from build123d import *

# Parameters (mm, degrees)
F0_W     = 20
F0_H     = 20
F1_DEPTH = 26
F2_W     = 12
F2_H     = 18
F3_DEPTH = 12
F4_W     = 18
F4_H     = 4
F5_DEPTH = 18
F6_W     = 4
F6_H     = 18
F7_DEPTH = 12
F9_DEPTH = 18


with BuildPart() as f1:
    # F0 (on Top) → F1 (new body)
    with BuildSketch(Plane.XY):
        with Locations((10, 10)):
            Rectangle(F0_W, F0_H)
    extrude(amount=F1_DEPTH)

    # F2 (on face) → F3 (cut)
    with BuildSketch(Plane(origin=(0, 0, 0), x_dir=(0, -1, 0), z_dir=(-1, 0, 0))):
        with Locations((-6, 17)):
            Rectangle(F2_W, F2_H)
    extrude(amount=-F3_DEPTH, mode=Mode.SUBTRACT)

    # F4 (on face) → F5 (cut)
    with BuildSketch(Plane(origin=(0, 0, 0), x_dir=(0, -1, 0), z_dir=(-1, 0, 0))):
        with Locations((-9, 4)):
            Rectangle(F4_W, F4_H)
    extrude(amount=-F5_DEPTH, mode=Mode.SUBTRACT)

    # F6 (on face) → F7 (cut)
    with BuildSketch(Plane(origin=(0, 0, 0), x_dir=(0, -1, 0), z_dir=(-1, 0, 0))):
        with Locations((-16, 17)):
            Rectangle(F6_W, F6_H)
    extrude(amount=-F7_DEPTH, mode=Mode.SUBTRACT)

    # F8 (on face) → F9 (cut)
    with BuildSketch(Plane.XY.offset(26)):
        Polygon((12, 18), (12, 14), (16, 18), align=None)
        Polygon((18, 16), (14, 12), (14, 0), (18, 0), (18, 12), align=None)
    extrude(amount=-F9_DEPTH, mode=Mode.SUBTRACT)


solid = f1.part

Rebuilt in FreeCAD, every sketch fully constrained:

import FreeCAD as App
import Part
import Sketcher
Q = App.Units.Quantity


def add_polygon(sketch, points):
    """Adds a closed chain of lines whose ends are joined by coincident constraints."""
    first, n = sketch.GeometryCount, len(points)
    for a, b in zip(points, points[1:] + points[:1]):
        sketch.addGeometry(Part.LineSegment(App.Vector(*a, 0), App.Vector(*b, 0)), False)
    for i in range(n):
        sketch.addConstraint(Sketcher.Constraint("Coincident", first + i, 2, first + (i + 1) % n, 1))

doc = App.newDocument("Part")
body = doc.addObject("PartDesign::Body", "Body")

# Sketch on XY plane
sketch1 = body.newObject("Sketcher::SketchObject", "Sketch")
sketch1.AttachmentSupport = (doc.getObject("XY_Plane"), [""])
sketch1.MapMode = "FlatFace"
add_polygon(sketch1, [(0, 20), (0, 0), (20, 0), (20, 20)])  # lines 0-3
sketch1.addConstraint([
    Sketcher.Constraint("Vertical", 0),
    Sketcher.Constraint("Horizontal", 1),
    Sketcher.Constraint("Vertical", 2),
    Sketcher.Constraint("Horizontal", 3),
    Sketcher.Constraint("Coincident", 0, 2, -1, 1),
    Sketcher.Constraint("Equal", 3, 0),
    Sketcher.Constraint("DistanceX", 1, 1, 1, 2, Q("20 mm")),
])
pad1 = body.newObject("PartDesign::Pad", "Pad")
pad1.Profile = sketch1
pad1.Length = 26

# Sketch on YZ plane
sketch2 = body.newObject("Sketcher::SketchObject", "Sketch001")
sketch2.AttachmentSupport = (doc.getObject("YZ_Plane"), [""])
sketch2.MapMode = "FlatFace"
add_polygon(sketch2, [(12, 26), (12, 8), (0, 8), (0, 26)])  # lines 0-3
sketch2.addConstraint([
    Sketcher.Constraint("Vertical", 0),
    Sketcher.Constraint("Horizontal", 1),
    Sketcher.Constraint("Vertical", 2),
    Sketcher.Constraint("Horizontal", 3),
    Sketcher.Constraint("PointOnObject", 1, 2, -2),
    Sketcher.Constraint("DistanceX", 1, 2, 1, 1, Q("12 mm")),
    Sketcher.Constraint("DistanceY", 0, 2, 0, 1, Q("18 mm")),
    Sketcher.Constraint("DistanceY", -1, 1, 0, 2, Q("8 mm")),
])
pocket1 = body.newObject("PartDesign::Pocket", "Pocket")
pocket1.Profile = sketch2
pocket1.Length = 12
pocket1.Reversed = True

# Sketch on YZ plane
sketch3 = body.newObject("Sketcher::SketchObject", "Sketch002")
sketch3.AttachmentSupport = (doc.getObject("YZ_Plane"), [""])
sketch3.MapMode = "FlatFace"
add_polygon(sketch3, [(18, 6), (18, 2), (0, 2), (0, 6)])  # lines 0-3
sketch3.addConstraint([
    Sketcher.Constraint("Vertical", 0),
    Sketcher.Constraint("Horizontal", 1),
    Sketcher.Constraint("Vertical", 2),
    Sketcher.Constraint("Horizontal", 3),
    Sketcher.Constraint("PointOnObject", 1, 2, -2),
    Sketcher.Constraint("DistanceX", 1, 2, 1, 1, Q("18 mm")),
    Sketcher.Constraint("DistanceY", 0, 2, 0, 1, Q("4 mm")),
    Sketcher.Constraint("DistanceY", -1, 1, 0, 2, Q("2 mm")),
])
pocket2 = body.newObject("PartDesign::Pocket", "Pocket001")
pocket2.Profile = sketch3
pocket2.Length = 18
pocket2.Reversed = True

# Sketch on YZ plane
sketch4 = body.newObject("Sketcher::SketchObject", "Sketch003")
sketch4.AttachmentSupport = (doc.getObject("YZ_Plane"), [""])
sketch4.MapMode = "FlatFace"
add_polygon(sketch4, [(18, 26), (18, 8), (14, 8), (14, 26)])  # lines 0-3
sketch4.addConstraint([
    Sketcher.Constraint("Vertical", 0),
    Sketcher.Constraint("Horizontal", 1),
    Sketcher.Constraint("Vertical", 2),
    Sketcher.Constraint("Horizontal", 3),
    Sketcher.Constraint("DistanceX", 1, 2, 1, 1, Q("4 mm")),
    Sketcher.Constraint("DistanceY", 0, 2, 0, 1, Q("18 mm")),
    Sketcher.Constraint("DistanceX", -1, 1, 0, 2, Q("18 mm")),
    Sketcher.Constraint("DistanceY", -1, 1, 0, 2, Q("8 mm")),
])
pocket3 = body.newObject("PartDesign::Pocket", "Pocket002")
pocket3.Profile = sketch4
pocket3.Length = 12
pocket3.Reversed = True

# Sketch on XY plane
sketch5 = body.newObject("Sketcher::SketchObject", "Sketch004")
sketch5.AttachmentSupport = (doc.getObject("XY_Plane"), [""])
sketch5.MapMode = "FlatFace"
sketch5.AttachmentOffset = App.Placement(App.Vector(0, 0, 26), App.Rotation())
add_polygon(sketch5, [(12, 18), (12, 14), (16, 18)])  # lines 0-2
add_polygon(sketch5, [(18, 16), (14, 12), (14, 0), (18, 0)])  # lines 3-6
sketch5.addConstraint([
    Sketcher.Constraint("Vertical", 0),
    Sketcher.Constraint("Horizontal", 2),
    Sketcher.Constraint("Vertical", 4),
    Sketcher.Constraint("Horizontal", 5),
    Sketcher.Constraint("Vertical", 6),
    Sketcher.Constraint("PointOnObject", 4, 2, -1),
    Sketcher.Constraint("Parallel", 1, 3),
    Sketcher.Constraint("Equal", 2, 5),
    Sketcher.Constraint("Equal", 5, 0),
    Sketcher.Constraint("DistanceX", 2, 2, 2, 1, Q("4 mm")),
    Sketcher.Constraint("DistanceY", 4, 2, 4, 1, Q("12 mm")),
    Sketcher.Constraint("DistanceX", -1, 1, 0, 2, Q("12 mm")),
    Sketcher.Constraint("DistanceY", -1, 1, 0, 2, Q("14 mm")),
    Sketcher.Constraint("DistanceX", -1, 1, 3, 2, Q("14 mm")),
])
pocket4 = body.newObject("PartDesign::Pocket", "Pocket003")
pocket4.Profile = sketch5
pocket4.Length = 18

doc.recompute()
